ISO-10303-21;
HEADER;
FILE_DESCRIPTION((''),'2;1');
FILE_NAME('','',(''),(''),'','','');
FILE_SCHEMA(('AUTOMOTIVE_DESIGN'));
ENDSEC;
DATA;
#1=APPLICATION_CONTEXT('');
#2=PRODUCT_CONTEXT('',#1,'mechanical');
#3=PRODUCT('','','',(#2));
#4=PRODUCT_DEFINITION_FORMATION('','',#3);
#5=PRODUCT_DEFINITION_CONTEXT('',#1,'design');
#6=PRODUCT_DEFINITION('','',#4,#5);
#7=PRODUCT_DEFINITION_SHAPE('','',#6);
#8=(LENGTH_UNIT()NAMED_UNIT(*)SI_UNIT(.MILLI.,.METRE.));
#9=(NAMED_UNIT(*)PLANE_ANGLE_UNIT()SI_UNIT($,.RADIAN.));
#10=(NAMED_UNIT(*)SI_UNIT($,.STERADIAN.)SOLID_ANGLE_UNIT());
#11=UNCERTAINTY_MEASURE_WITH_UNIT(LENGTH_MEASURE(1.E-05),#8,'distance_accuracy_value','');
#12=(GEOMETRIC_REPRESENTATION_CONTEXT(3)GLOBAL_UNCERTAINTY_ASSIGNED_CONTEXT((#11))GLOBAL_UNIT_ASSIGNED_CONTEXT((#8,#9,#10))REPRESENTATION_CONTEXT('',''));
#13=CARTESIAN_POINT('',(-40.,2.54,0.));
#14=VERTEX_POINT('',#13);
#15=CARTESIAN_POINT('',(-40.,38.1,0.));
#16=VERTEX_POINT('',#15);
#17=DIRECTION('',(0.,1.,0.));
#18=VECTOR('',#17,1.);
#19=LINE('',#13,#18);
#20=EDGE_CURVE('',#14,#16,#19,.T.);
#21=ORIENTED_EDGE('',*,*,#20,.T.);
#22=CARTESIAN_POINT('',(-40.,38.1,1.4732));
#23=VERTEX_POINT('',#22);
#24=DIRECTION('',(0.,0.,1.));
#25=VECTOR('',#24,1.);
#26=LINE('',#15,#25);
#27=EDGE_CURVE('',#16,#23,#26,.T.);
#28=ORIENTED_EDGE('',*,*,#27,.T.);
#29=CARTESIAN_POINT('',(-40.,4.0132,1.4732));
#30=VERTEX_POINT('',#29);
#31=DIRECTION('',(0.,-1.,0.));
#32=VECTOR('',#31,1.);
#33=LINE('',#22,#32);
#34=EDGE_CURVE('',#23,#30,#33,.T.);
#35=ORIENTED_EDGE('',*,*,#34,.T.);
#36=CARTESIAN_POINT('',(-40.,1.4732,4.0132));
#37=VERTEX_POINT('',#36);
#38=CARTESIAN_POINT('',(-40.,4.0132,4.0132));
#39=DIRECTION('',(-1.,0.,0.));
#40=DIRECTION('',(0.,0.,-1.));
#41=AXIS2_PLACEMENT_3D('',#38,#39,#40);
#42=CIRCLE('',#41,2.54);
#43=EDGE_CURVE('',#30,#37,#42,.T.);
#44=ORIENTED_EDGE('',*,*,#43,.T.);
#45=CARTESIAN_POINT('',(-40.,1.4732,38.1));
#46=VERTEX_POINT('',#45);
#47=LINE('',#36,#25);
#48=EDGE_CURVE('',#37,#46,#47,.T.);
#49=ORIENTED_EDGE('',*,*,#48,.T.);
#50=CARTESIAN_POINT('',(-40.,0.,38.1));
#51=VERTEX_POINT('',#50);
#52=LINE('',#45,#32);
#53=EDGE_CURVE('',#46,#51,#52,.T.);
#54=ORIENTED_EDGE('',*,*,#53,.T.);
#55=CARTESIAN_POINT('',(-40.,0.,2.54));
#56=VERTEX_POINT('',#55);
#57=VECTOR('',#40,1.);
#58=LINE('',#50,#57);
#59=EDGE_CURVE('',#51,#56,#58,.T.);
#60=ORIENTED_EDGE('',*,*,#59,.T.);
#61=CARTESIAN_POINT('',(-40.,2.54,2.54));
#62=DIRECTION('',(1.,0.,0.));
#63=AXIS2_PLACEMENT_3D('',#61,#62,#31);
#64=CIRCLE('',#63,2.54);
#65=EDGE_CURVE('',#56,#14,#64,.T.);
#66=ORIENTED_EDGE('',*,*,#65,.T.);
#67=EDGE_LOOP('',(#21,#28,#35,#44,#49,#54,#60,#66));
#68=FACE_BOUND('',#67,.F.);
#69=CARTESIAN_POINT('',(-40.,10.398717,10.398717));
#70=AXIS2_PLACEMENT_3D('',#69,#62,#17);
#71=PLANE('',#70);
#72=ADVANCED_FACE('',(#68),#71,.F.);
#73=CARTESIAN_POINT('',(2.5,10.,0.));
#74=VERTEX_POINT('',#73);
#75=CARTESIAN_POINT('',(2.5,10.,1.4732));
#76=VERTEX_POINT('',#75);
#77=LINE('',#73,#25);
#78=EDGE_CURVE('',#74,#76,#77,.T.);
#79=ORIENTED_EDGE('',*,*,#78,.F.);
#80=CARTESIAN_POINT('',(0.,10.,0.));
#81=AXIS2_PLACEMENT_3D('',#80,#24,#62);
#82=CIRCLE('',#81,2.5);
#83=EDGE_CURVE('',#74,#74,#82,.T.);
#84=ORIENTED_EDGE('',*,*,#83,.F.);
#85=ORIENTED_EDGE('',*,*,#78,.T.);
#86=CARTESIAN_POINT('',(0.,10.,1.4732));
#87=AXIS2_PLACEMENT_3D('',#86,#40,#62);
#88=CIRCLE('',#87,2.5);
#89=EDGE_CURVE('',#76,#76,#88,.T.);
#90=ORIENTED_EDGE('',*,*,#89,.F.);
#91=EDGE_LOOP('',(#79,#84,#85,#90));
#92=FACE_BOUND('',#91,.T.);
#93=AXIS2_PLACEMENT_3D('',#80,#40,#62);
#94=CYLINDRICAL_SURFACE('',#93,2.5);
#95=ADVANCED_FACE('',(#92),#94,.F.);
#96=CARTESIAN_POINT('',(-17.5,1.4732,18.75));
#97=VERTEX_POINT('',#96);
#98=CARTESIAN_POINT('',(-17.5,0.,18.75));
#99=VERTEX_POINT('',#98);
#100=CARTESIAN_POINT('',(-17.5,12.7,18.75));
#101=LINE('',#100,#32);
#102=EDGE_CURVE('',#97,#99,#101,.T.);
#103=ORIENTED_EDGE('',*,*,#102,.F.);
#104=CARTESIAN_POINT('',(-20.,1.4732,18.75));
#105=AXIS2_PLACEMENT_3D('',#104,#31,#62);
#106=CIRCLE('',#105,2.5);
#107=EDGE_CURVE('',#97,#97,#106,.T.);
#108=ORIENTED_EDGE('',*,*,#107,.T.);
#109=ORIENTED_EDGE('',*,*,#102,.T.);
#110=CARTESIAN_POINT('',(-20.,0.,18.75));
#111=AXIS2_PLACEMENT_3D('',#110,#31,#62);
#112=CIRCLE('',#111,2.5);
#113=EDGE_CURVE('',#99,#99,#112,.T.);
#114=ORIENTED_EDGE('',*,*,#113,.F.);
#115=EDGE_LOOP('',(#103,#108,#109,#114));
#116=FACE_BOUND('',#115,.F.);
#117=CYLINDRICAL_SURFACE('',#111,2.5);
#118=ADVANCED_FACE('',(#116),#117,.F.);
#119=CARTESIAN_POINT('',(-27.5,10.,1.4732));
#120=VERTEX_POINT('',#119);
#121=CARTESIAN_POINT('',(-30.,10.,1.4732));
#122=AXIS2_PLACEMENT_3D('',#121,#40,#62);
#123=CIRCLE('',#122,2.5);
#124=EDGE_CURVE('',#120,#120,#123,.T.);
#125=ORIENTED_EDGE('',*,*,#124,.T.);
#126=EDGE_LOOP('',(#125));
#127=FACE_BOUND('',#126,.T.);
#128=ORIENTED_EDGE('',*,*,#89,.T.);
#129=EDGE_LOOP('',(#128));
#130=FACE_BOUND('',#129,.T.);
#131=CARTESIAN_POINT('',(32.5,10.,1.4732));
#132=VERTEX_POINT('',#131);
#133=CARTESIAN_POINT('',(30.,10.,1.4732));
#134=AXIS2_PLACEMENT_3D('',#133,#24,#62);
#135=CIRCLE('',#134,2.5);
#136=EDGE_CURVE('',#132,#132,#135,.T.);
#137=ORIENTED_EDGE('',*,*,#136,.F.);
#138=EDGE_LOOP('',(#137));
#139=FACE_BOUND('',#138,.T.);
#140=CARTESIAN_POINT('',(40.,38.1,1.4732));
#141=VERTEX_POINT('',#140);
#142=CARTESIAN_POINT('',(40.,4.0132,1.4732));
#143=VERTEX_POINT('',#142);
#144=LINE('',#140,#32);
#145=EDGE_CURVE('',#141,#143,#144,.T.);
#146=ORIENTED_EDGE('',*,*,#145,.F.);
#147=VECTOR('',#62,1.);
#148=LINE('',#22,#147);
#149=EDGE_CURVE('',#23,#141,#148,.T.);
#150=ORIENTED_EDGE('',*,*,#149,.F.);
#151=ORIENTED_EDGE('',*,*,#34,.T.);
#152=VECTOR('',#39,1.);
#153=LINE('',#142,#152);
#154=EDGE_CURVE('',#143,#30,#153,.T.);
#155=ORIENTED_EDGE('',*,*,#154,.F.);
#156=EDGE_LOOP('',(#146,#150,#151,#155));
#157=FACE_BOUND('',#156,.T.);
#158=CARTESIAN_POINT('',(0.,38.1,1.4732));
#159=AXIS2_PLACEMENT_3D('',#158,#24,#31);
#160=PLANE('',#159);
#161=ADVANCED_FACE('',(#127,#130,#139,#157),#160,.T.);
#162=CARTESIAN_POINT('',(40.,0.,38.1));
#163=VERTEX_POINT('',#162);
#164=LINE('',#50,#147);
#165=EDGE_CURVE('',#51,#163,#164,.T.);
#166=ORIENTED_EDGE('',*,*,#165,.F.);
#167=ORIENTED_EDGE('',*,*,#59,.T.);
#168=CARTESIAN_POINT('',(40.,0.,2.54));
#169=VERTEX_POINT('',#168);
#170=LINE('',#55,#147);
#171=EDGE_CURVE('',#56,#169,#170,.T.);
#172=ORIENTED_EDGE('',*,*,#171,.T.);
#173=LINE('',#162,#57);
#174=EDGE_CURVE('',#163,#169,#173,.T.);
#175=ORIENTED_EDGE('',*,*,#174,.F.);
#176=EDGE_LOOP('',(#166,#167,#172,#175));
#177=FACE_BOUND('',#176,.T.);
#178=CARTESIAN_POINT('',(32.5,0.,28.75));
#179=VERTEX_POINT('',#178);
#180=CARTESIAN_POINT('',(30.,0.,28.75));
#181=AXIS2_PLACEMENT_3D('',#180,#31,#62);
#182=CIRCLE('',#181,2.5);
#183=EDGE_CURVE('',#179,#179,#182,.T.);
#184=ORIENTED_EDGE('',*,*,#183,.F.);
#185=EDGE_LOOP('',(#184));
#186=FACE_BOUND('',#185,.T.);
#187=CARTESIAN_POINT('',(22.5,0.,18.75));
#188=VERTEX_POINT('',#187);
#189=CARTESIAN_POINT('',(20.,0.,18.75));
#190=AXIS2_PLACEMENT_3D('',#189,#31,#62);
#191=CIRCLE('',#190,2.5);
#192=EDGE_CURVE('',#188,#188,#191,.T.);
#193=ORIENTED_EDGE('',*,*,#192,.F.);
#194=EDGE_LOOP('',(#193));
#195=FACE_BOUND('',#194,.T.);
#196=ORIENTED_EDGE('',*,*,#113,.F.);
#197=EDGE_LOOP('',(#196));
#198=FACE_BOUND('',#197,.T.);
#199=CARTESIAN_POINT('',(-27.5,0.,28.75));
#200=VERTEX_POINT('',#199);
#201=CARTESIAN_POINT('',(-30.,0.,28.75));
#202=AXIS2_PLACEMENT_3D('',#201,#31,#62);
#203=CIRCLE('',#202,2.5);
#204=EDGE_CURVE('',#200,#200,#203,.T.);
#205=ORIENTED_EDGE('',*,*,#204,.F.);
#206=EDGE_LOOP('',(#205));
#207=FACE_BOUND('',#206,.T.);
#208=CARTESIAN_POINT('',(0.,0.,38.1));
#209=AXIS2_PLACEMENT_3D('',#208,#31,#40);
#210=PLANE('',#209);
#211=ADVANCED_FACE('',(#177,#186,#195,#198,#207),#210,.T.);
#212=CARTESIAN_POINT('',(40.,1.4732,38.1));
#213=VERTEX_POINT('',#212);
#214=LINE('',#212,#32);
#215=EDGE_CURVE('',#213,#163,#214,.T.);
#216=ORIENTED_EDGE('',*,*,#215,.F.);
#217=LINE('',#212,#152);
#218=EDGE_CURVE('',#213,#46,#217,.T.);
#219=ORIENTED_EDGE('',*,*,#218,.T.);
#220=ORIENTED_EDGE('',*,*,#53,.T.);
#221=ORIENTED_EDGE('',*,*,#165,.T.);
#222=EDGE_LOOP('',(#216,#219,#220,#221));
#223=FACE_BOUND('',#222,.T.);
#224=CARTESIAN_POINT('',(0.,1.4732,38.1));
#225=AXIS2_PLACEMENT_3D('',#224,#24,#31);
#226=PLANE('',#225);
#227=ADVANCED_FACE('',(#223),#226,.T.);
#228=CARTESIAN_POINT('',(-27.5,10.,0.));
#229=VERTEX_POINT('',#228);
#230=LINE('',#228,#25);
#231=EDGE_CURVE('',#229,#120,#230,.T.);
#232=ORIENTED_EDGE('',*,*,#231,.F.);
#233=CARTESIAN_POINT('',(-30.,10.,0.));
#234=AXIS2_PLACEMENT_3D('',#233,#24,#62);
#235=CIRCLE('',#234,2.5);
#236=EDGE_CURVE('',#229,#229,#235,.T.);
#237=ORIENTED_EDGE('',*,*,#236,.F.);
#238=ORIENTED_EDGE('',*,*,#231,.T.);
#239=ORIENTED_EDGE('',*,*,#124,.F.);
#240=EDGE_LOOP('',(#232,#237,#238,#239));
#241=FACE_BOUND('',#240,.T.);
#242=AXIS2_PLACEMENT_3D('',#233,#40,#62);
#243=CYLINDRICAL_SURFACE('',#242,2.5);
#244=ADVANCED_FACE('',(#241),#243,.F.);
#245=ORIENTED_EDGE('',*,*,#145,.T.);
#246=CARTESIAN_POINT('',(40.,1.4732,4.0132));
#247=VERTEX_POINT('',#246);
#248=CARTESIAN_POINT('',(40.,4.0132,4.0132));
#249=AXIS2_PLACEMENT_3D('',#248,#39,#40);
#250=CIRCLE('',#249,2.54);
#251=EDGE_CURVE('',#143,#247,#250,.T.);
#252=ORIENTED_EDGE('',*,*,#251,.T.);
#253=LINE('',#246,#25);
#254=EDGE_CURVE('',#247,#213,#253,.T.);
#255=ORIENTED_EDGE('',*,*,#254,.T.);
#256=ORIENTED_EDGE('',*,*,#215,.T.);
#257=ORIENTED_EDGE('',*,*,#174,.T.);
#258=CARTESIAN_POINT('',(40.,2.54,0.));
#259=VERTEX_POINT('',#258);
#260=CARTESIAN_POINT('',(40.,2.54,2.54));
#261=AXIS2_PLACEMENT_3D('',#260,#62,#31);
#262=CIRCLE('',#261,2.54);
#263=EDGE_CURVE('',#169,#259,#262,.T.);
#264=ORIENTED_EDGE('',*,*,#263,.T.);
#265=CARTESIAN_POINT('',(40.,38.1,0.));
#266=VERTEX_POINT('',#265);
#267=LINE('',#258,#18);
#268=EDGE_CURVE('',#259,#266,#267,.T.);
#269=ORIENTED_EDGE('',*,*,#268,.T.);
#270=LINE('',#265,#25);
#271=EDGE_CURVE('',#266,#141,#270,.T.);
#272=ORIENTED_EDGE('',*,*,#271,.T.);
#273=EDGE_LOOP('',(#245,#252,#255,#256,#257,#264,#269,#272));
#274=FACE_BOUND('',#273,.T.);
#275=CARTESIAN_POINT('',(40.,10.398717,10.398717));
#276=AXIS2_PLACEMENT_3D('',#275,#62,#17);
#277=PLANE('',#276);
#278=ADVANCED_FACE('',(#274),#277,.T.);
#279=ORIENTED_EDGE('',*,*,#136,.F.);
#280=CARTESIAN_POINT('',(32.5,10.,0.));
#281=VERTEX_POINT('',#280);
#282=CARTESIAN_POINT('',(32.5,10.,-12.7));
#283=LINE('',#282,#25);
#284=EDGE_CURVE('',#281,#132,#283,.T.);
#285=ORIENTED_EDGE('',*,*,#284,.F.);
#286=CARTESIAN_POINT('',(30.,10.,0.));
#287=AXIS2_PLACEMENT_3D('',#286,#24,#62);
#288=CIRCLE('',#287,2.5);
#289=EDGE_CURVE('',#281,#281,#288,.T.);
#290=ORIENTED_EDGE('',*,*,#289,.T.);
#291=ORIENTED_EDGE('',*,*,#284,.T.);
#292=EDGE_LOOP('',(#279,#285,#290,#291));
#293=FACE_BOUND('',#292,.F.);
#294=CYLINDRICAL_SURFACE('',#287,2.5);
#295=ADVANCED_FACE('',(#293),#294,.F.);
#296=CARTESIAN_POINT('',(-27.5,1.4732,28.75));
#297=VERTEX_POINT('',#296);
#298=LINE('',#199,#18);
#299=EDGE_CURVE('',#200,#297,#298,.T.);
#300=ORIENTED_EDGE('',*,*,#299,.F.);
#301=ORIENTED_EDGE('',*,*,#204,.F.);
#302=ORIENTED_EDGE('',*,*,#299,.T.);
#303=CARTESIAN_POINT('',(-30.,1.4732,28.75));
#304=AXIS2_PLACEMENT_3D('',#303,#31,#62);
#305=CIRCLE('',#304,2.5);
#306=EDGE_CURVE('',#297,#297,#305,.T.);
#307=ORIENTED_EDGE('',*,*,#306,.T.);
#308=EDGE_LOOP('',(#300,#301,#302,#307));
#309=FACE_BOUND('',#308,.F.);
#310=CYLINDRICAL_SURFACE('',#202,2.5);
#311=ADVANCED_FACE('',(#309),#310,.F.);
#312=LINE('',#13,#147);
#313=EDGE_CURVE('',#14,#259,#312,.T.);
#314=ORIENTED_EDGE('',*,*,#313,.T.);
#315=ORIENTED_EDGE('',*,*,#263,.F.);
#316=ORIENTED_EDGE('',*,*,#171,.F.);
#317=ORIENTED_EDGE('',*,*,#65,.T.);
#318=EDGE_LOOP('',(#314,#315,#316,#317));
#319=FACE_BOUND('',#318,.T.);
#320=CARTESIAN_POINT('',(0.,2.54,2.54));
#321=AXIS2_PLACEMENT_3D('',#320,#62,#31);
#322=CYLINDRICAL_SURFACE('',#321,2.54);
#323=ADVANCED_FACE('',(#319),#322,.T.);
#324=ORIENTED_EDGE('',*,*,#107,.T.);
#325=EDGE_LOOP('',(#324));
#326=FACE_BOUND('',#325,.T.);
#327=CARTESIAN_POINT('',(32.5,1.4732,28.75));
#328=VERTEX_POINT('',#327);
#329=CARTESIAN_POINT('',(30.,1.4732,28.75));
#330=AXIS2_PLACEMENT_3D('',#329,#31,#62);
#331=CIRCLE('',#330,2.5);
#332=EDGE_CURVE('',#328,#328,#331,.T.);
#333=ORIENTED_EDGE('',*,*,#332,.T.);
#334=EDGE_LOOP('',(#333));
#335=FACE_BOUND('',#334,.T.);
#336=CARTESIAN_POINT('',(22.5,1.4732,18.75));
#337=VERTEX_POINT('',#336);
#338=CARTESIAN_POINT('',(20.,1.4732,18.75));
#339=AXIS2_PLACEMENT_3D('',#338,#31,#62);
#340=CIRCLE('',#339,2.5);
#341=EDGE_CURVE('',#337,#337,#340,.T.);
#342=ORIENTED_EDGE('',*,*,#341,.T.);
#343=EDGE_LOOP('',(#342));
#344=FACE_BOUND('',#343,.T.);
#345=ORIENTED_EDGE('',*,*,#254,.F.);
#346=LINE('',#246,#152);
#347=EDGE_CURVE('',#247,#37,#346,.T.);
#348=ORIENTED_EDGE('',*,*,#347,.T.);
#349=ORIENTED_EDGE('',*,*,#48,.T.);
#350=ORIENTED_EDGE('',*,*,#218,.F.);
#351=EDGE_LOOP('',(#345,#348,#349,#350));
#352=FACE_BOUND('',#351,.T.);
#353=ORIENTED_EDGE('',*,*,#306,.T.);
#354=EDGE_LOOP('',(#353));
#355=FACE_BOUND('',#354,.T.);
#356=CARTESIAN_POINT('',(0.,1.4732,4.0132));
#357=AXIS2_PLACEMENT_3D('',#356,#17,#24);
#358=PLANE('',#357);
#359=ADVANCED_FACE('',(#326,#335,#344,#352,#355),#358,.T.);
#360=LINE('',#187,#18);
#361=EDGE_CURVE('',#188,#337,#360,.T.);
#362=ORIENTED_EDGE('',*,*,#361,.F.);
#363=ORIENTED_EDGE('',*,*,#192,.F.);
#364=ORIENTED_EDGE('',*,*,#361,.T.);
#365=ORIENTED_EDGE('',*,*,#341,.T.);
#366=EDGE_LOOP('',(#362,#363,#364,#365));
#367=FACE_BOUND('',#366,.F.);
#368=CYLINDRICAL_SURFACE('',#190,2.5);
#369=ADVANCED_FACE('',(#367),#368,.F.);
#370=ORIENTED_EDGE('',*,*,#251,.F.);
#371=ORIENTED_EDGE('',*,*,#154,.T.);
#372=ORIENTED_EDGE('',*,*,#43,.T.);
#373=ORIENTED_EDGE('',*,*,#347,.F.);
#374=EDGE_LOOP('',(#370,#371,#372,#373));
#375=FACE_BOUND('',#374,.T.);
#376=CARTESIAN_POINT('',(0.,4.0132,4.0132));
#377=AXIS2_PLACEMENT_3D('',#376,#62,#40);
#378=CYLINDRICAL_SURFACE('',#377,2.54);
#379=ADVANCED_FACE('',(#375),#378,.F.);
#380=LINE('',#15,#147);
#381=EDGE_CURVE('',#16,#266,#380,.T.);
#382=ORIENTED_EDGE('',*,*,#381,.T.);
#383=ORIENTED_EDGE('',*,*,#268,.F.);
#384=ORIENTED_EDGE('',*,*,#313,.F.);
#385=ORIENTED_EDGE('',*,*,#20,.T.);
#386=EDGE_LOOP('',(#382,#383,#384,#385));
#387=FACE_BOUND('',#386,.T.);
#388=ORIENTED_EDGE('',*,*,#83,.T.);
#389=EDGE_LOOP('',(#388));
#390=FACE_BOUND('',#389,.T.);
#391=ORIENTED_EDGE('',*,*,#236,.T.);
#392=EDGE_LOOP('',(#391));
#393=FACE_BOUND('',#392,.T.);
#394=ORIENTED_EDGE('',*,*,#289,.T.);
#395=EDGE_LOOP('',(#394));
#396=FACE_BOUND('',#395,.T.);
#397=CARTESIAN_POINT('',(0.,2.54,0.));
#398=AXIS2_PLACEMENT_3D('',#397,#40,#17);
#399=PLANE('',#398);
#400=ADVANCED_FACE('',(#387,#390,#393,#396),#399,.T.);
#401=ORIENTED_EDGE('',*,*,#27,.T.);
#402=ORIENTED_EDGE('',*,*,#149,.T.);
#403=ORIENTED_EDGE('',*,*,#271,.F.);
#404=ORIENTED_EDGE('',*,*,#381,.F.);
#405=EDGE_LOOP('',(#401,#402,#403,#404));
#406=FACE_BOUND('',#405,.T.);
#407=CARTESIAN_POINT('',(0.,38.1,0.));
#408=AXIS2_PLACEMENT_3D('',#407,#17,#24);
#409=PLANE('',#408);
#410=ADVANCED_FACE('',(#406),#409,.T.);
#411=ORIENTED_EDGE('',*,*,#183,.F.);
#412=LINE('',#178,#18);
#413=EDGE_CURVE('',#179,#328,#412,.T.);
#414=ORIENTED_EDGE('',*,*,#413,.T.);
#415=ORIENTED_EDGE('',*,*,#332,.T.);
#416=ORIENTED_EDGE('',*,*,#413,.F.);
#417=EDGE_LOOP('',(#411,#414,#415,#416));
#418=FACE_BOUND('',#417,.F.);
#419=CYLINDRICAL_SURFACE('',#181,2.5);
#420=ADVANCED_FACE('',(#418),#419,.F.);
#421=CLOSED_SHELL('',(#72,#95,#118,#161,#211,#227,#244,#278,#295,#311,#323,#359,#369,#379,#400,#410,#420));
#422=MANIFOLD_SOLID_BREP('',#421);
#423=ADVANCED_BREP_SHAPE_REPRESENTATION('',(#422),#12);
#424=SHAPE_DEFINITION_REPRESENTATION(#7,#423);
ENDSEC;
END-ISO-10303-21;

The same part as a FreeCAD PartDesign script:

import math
import FreeCAD as App
import Part
import Sketcher
from FreeCAD import Vector
Q = App.Units.Quantity

doc = App.newDocument("Part")
body = doc.addObject("PartDesign::Body", "Body")

# Sketch on YZ plane
sketch1 = doc.addObject("Sketcher::SketchObject", "Sketch")
body.addObject(sketch1)
sketch1.AttachmentSupport = (doc.YZ_Plane, [""])
sketch1.MapMode = "FlatFace"
sketch1.addGeometry([
    Part.LineSegment(Vector(1.4732, 38.1, 0), Vector(0, 38.1, 0)),  # 0
    Part.LineSegment(Vector(0, 38.1, 0), Vector(0, 2.54, 0)),  # 1
    Part.ArcOfCircle(Part.Circle(Vector(2.54, 2.54, 0), Vector(0, 0, 1), 2.54), math.radians(180), math.radians(270)),  # 2
    Part.LineSegment(Vector(2.54, 0, 0), Vector(38.1, 0, 0)),  # 3
    Part.LineSegment(Vector(38.1, 0, 0), Vector(38.1, 1.4732, 0)),  # 4
    Part.LineSegment(Vector(38.1, 1.4732, 0), Vector(4.0132, 1.4732, 0)),  # 5
    Part.ArcOfCircle(Part.Circle(Vector(4.0132, 4.0132, 0), Vector(0, 0, 1), 2.54), math.radians(180), math.radians(270)),  # 6
    Part.LineSegment(Vector(1.4732, 4.0132, 0), Vector(1.4732, 38.1, 0)),  # 7
], False)
sketch1.addConstraint([
    Sketcher.Constraint("Coincident", 0, 2, 1, 1),
    Sketcher.Constraint("Tangent", 1, 2, 2, 1),
    Sketcher.Constraint("Tangent", 2, 2, 3, 1),
    Sketcher.Constraint("Coincident", 3, 2, 4, 1),
    Sketcher.Constraint("Coincident", 4, 2, 5, 1),
    Sketcher.Constraint("Tangent", 5, 2, 6, 2),
    Sketcher.Constraint("Tangent", 6, 1, 7, 1),
    Sketcher.Constraint("Coincident", 7, 2, 0, 1),
    Sketcher.Constraint("Horizontal", 0),
    Sketcher.Constraint("Vertical", 1),
    Sketcher.Constraint("Horizontal", 3),
    Sketcher.Constraint("Vertical", 4),
    Sketcher.Constraint("Horizontal", 5),
    Sketcher.Constraint("Vertical", 7),
    Sketcher.Constraint("Equal", 2, 6),
    Sketcher.Constraint("PointOnObject", 0, 2, -2),
    Sketcher.Constraint("PointOnObject", 2, 2, -1),
    Sketcher.Constraint("Equal", 3, 1),
    Sketcher.Constraint("Equal", 0, 4),
    Sketcher.Constraint("Radius", 2, Q("0.1 in")),
    Sketcher.Constraint("DistanceX", 3, 1, 3, 2, Q("1.4 in")),
    Sketcher.Constraint("DistanceX", 0, 2, 0, 1, Q("0.058 in")),
])
pad1 = doc.addObject("PartDesign::Pad", "Pad")
body.addObject(pad1)
pad1.Profile = sketch1
pad1.Length = 80
pad1.Midplane = True

# Sketch on XY plane
sketch2 = doc.addObject("Sketcher::SketchObject", "Sketch001")
body.addObject(sketch2)
sketch2.AttachmentSupport = (doc.XY_Plane, [""])
sketch2.MapMode = "FlatFace"
sketch2.addGeometry([
    Part.Circle(Vector(-30, 10, 0), Vector(0, 0, 1), 2.5),
    Part.Circle(Vector(0, 10, 0), Vector(0, 0, 1), 2.5),
    Part.Circle(Vector(30, 10, 0), Vector(0, 0, 1), 2.5),
], False)
sketch2.addConstraint([
    Sketcher.Constraint("Equal", 0, 1),
    Sketcher.Constraint("Equal", 1, 2),
    Sketcher.Constraint("Symmetric", 0, 3, 2, 3, -2),
    Sketcher.Constraint("PointOnObject", 1, 3, -2),
    Sketcher.Constraint("Horizontal", 0, 3, 1, 3),
    Sketcher.Constraint("Diameter", 0, 5.0),
    Sketcher.Constraint("DistanceX", 0, 3, -1, 1, 30.0),
    Sketcher.Constraint("DistanceY", -1, 1, 0, 3, 10.0),
])
pocket1 = doc.addObject("PartDesign::Pocket", "Pocket")
body.addObject(pocket1)
pocket1.Profile = sketch2
pocket1.Length = Q("1 in")
pocket1.Midplane = True

# Sketch on XZ plane
sketch3 = doc.addObject("Sketcher::SketchObject", "Sketch002")
body.addObject(sketch3)
sketch3.AttachmentSupport = (doc.XZ_Plane, [""])
sketch3.MapMode = "FlatFace"
sketch3.addGeometry([
    Part.Circle(Vector(-30, 28.75, 0), Vector(0, 0, 1), 2.5),
    Part.Circle(Vector(30, 28.75, 0), Vector(0, 0, 1), 2.5),
    Part.Circle(Vector(20, 18.75, 0), Vector(0, 0, 1), 2.5),
    Part.Circle(Vector(-20, 18.75, 0), Vector(0, 0, 1), 2.5),
], False)
sketch3.addConstraint([
    Sketcher.Constraint("Equal", 0, 1),
    Sketcher.Constraint("Equal", 1, 2),
    Sketcher.Constraint("Equal", 2, 3),
    Sketcher.Constraint("Symmetric", 0, 3, 1, 3, -2),
    Sketcher.Constraint("Symmetric", 2, 3, 3, 3, -2),
    Sketcher.Constraint("Diameter", 0, 5.0),
    Sketcher.Constraint("DistanceX", 0, 3, -1, 1, 30.0),
    Sketcher.Constraint("DistanceY", -1, 1, 0, 3, 28.75),
    Sketcher.Constraint("DistanceX", -1, 1, 2, 3, 20.0),
    Sketcher.Constraint("DistanceY", -1, 1, 2, 3, 18.75),
])
pocket2 = doc.addObject("PartDesign::Pocket", "Pocket001")
body.addObject(pocket2)
pocket2.Profile = sketch3
pocket2.Length = Q("1 in")
pocket2.Midplane = True

doc.recompute()
